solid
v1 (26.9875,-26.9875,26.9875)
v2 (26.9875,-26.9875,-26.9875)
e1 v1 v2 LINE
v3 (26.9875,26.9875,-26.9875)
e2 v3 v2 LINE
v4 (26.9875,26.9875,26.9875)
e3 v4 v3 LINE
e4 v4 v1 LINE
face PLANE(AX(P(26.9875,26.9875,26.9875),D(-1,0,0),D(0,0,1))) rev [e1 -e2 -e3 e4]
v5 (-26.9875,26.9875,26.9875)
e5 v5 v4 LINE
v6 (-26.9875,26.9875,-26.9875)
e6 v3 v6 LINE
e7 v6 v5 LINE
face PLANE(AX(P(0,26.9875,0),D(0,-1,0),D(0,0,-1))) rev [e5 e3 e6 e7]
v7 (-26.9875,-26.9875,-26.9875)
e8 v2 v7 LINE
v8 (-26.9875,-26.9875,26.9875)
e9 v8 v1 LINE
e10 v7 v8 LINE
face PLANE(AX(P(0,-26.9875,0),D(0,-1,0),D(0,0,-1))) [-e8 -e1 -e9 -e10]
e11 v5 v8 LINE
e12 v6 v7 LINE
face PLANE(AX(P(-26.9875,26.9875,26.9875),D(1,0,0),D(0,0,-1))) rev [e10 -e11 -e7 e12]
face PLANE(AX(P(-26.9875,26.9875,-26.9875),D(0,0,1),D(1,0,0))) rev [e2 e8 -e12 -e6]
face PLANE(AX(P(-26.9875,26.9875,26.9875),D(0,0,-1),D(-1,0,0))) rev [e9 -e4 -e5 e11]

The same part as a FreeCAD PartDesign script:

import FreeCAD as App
import Part
import Sketcher
Q = App.Units.Quantity

doc = App.newDocument("Part")
body = doc.addObject("PartDesign::Body", "Body")

# Sketch on XZ plane
sketch1 = body.newObject("Sketcher::SketchObject", "Sketch")
sketch1.AttachmentSupport = (doc.getObject("XZ_Plane"), [""])
sketch1.MapMode = "FlatFace"
sketch1.addGeometry(Part.LineSegment(App.Vector(-27, -27, 0), App.Vector(-27, 27, 0)), False)
sketch1.addGeometry(Part.LineSegment(App.Vector(-27, 27, 0), App.Vector(27, 27, 0)), False)
sketch1.addGeometry(Part.LineSegment(App.Vector(27, 27, 0), App.Vector(27, -27, 0)), False)
sketch1.addGeometry(Part.LineSegment(App.Vector(27, -27, 0), App.Vector(-27, -27, 0)), False)
sketch1.addConstraint(Sketcher.Constraint("Coincident", 0, 2, 1, 1))
sketch1.addConstraint(Sketcher.Constraint("Coincident", 1, 2, 2, 1))
sketch1.addConstraint(Sketcher.Constraint("Coincident", 2, 2, 3, 1))
sketch1.addConstraint(Sketcher.Constraint("Coincident", 3, 2, 0, 1))
sketch1.addConstraint(Sketcher.Constraint("Vertical", 0))
sketch1.addConstraint(Sketcher.Constraint("Horizontal", 1))
sketch1.addConstraint(Sketcher.Constraint("Vertical", 2))
sketch1.addConstraint(Sketcher.Constraint("Horizontal", 3))
sketch1.addConstraint(Sketcher.Constraint("Symmetric", 0, 2, 2, 2, -1, 1))
sketch1.addConstraint(Sketcher.Constraint("Equal", 3, 0))
sketch1.addConstraint(Sketcher.Constraint("DistanceX", 1, 1, 1, 2, Q("2.125 in")))
pad1 = body.newObject("PartDesign::Pad", "Pad")
pad1.Profile = sketch1
pad1.Length = Q("2.125 in")
pad1.Midplane = True

doc.recompute()
